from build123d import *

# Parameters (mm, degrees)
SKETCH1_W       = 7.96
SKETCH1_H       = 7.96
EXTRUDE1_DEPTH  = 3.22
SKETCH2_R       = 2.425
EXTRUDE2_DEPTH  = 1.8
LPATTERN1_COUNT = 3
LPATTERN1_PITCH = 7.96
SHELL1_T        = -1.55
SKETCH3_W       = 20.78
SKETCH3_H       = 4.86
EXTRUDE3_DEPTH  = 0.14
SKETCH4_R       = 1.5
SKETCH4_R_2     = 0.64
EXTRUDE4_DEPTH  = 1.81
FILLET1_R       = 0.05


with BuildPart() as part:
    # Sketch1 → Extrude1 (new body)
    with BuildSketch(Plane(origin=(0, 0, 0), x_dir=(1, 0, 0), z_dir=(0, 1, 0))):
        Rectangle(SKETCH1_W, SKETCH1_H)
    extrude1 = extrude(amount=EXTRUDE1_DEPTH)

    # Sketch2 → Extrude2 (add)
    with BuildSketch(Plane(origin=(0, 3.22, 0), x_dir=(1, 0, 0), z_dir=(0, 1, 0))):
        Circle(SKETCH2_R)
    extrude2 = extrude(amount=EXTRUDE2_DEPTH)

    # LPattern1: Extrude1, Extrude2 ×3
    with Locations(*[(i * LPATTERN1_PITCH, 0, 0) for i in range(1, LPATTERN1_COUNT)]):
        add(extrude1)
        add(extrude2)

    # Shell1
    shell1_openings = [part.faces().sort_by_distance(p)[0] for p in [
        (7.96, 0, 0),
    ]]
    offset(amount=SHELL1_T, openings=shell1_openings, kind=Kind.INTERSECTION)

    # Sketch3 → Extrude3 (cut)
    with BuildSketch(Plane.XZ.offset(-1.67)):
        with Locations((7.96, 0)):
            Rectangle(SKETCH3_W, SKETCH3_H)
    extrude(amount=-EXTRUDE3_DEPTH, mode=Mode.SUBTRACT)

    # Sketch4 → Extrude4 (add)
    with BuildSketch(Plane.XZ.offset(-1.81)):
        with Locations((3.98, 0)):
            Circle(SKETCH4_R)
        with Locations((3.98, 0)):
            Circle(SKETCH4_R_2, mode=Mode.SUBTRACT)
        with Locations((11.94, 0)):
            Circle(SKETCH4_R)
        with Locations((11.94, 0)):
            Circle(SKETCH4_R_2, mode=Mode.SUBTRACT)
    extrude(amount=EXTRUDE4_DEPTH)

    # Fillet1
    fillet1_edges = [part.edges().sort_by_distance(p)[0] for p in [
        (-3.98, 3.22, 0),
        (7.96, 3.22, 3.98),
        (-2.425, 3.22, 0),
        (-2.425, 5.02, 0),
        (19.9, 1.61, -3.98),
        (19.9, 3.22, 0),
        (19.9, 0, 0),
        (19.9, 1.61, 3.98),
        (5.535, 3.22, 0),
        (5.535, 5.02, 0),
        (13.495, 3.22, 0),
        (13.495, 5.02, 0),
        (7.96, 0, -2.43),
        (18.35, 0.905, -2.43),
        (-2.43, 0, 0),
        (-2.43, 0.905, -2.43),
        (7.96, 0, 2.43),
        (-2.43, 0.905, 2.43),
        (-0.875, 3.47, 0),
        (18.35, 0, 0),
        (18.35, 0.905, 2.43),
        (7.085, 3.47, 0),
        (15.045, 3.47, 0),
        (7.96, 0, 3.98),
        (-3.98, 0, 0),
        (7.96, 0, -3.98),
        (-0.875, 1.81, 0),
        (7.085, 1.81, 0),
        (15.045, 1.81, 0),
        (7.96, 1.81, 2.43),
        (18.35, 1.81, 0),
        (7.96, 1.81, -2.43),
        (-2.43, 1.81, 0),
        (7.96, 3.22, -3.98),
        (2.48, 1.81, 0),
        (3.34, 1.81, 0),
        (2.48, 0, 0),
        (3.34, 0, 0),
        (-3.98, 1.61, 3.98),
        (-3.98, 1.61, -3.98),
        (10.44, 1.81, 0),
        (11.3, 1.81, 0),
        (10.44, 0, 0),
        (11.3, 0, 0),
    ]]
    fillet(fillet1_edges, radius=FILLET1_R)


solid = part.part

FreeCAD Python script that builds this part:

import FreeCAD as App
import Part
import Sketcher

V = App.Vector
Q = App.Units.Quantity


def faces_at(feature, points):
    """Names of the faces that lie closest to the given points."""
    faces = feature.Shape.Faces
    near = lambda p: min(range(len(faces)), key=lambda i: faces[i].distToShape(Part.Vertex(*p))[0])
    return sorted({f"Face{near(p) + 1}" for p in points})


def add_polygon(sketch, points):
    """Adds a closed chain of lines whose ends are joined by coincident constraints."""
    first, n = sketch.GeometryCount, len(points)
    for a, b in zip(points, points[1:] + points[:1]):
        sketch.addGeometry(Part.LineSegment(App.Vector(*a, 0), App.Vector(*b, 0)), False)
    for i in range(n):
        sketch.addConstraint(Sketcher.Constraint("Coincident", first + i, 2, first + (i + 1) % n, 1))

doc = App.newDocument("Part")
body = doc.addObject("PartDesign::Body", "Body")

sketch1 = doc.addObject("Sketcher::SketchObject", "Sketch")
body.addObject(sketch1)
sketch1.AttachmentSupport = (doc.XZ_Plane, [""])
sketch1.MapMode = "FlatFace"
add_polygon(sketch1, [(-4, -4), (-4, 4), (4, 4), (4, -4)])
sketch1.addConstraint(Sketcher.Constraint("Vertical", 0))
sketch1.addConstraint(Sketcher.Constraint("Horizontal", 1))
sketch1.addConstraint(Sketcher.Constraint("Vertical", 2))
sketch1.addConstraint(Sketcher.Constraint("Horizontal", 3))
sketch1.addConstraint(Sketcher.Constraint("Symmetric", 0, 2, 2, 2, -1, 1))
sketch1.addConstraint(Sketcher.Constraint("Equal", 3, 0))
sketch1.addConstraint(Sketcher.Constraint("DistanceX", 1, 1, 1, 2, Q("7.96 mm")))
pad1 = doc.addObject("PartDesign::Pad", "Pad")
body.addObject(pad1)
pad1.Profile = sketch1
pad1.Length = 3.22
pad1.Reversed = True

sketch2 = doc.addObject("Sketcher::SketchObject", "Sketch001")
body.addObject(sketch2)
sketch2.AttachmentSupport = (doc.XZ_Plane, [""])
sketch2.MapMode = "FlatFace"
sketch2.AttachmentOffset = App.Placement(V(0, 0, -3.22), App.Rotation())
sketch2.addGeometry(Part.Circle(V(0, 0, 0), V(0, 0, 1), 2.4), False)
sketch2.addConstraint(Sketcher.Constraint("Coincident", 0, 3, -1, 1))
sketch2.addConstraint(Sketcher.Constraint("Diameter", 0, Q("4.85 mm")))
pad2 = doc.addObject("PartDesign::Pad", "Pad001")
body.addObject(pad2)
pad2.Profile = sketch2
pad2.Length = 1.8
pad2.Reversed = True
doc.recompute()

linearpattern = doc.addObject("PartDesign::LinearPattern", "LinearPattern")
body.addObject(linearpattern)
linearpattern.Originals = [pad1, pad2]
linearpattern.Direction = (doc.X_Axis, [""])
linearpattern.Mode = "offset"
linearpattern.Offset = 7.96
linearpattern.Occurrences = 3
body.Tip = linearpattern
doc.recompute()

thickness = doc.addObject("PartDesign::Thickness", "Thickness")
body.addObject(thickness)
thickness.Base = (linearpattern, faces_at(linearpattern, [(7.96, 0, 0)]))
thickness.Value = 1.55
thickness.Reversed = True
thickness.Join = "Intersection"

sketch3 = doc.addObject("Sketcher::SketchObject", "Sketch002")
body.addObject(sketch3)
sketch3.AttachmentSupport = (doc.XZ_Plane, [""])
sketch3.MapMode = "FlatFace"
sketch3.AttachmentOffset = App.Placement(V(0, 0, -1.67), App.Rotation())
add_polygon(sketch3, [(-2.4, 2.4), (-2.4, -2.4), (18.4, -2.4), (18.4, 2.4)])
sketch3.addConstraint(Sketcher.Constraint("Vertical", 0))
sketch3.addConstraint(Sketcher.Constraint("Horizontal", 1))
sketch3.addConstraint(Sketcher.Constraint("Vertical", 2))
sketch3.addConstraint(Sketcher.Constraint("Horizontal", 3))
sketch3.addConstraint(Sketcher.Constraint("DistanceX", 1, 1, 1, 2, Q("20.78 mm")))
sketch3.addConstraint(Sketcher.Constraint("DistanceY", 0, 2, 0, 1, Q("4.86 mm")))
sketch3.addConstraint(Sketcher.Constraint("DistanceX", 0, 2, -1, 1, Q("2.43 mm")))
sketch3.addConstraint(Sketcher.Constraint("DistanceY", 0, 2, -1, 1, Q("2.43 mm")))
pocket1 = doc.addObject("PartDesign::Pocket", "Pocket")
body.addObject(pocket1)
pocket1.Profile = sketch3
pocket1.Length = 0.14

sketch4 = doc.addObject("Sketcher::SketchObject", "Sketch003")
body.addObject(sketch4)
sketch4.AttachmentSupport = (doc.XZ_Plane, [""])
sketch4.MapMode = "FlatFace"
sketch4.AttachmentOffset = App.Placement(V(0, 0, -1.81), App.Rotation())
sketch4.addGeometry(Part.Circle(V(4, 0, 0), V(0, 0, 1), 1.5), False)
sketch4.addGeometry(Part.Circle(V(4, 0, 0), V(0, 0, 1), 0.6), False)
sketch4.addGeometry(Part.Circle(V(11.9, 0, 0), V(0, 0, 1), 1.5), False)
sketch4.addGeometry(Part.Circle(V(11.9, 0, 0), V(0, 0, 1), 0.6), False)
sketch4.addConstraint(Sketcher.Constraint("Coincident", 1, 3, 0, 3))
sketch4.addConstraint(Sketcher.Constraint("Coincident", 3, 3, 2, 3))
sketch4.addConstraint(Sketcher.Constraint("Equal", 0, 2))
sketch4.addConstraint(Sketcher.Constraint("Equal", 1, 3))
sketch4.addConstraint(Sketcher.Constraint("PointOnObject", 0, 3, -1))
sketch4.addConstraint(Sketcher.Constraint("PointOnObject", 2, 3, -1))
sketch4.addConstraint(Sketcher.Constraint("Diameter", 0, Q("3 mm")))
sketch4.addConstraint(Sketcher.Constraint("Diameter", 1, Q("1.28 mm")))
sketch4.addConstraint(Sketcher.Constraint("DistanceX", -1, 1, 0, 3, Q("3.98 mm")))
sketch4.addConstraint(Sketcher.Constraint("DistanceX", -1, 1, 2, 3, Q("11.94 mm")))
pad3 = doc.addObject("PartDesign::Pad", "Pad002")
body.addObject(pad3)
pad3.Profile = sketch4
pad3.Length = 1.81
doc.recompute()

fillet = doc.addObject("PartDesign::Fillet", "Fillet")
body.addObject(fillet)
fillet.Base = (pad3, ["Edge1"])
fillet.UseAllEdges = True
fillet.Radius = 0.05

doc.recompute()
